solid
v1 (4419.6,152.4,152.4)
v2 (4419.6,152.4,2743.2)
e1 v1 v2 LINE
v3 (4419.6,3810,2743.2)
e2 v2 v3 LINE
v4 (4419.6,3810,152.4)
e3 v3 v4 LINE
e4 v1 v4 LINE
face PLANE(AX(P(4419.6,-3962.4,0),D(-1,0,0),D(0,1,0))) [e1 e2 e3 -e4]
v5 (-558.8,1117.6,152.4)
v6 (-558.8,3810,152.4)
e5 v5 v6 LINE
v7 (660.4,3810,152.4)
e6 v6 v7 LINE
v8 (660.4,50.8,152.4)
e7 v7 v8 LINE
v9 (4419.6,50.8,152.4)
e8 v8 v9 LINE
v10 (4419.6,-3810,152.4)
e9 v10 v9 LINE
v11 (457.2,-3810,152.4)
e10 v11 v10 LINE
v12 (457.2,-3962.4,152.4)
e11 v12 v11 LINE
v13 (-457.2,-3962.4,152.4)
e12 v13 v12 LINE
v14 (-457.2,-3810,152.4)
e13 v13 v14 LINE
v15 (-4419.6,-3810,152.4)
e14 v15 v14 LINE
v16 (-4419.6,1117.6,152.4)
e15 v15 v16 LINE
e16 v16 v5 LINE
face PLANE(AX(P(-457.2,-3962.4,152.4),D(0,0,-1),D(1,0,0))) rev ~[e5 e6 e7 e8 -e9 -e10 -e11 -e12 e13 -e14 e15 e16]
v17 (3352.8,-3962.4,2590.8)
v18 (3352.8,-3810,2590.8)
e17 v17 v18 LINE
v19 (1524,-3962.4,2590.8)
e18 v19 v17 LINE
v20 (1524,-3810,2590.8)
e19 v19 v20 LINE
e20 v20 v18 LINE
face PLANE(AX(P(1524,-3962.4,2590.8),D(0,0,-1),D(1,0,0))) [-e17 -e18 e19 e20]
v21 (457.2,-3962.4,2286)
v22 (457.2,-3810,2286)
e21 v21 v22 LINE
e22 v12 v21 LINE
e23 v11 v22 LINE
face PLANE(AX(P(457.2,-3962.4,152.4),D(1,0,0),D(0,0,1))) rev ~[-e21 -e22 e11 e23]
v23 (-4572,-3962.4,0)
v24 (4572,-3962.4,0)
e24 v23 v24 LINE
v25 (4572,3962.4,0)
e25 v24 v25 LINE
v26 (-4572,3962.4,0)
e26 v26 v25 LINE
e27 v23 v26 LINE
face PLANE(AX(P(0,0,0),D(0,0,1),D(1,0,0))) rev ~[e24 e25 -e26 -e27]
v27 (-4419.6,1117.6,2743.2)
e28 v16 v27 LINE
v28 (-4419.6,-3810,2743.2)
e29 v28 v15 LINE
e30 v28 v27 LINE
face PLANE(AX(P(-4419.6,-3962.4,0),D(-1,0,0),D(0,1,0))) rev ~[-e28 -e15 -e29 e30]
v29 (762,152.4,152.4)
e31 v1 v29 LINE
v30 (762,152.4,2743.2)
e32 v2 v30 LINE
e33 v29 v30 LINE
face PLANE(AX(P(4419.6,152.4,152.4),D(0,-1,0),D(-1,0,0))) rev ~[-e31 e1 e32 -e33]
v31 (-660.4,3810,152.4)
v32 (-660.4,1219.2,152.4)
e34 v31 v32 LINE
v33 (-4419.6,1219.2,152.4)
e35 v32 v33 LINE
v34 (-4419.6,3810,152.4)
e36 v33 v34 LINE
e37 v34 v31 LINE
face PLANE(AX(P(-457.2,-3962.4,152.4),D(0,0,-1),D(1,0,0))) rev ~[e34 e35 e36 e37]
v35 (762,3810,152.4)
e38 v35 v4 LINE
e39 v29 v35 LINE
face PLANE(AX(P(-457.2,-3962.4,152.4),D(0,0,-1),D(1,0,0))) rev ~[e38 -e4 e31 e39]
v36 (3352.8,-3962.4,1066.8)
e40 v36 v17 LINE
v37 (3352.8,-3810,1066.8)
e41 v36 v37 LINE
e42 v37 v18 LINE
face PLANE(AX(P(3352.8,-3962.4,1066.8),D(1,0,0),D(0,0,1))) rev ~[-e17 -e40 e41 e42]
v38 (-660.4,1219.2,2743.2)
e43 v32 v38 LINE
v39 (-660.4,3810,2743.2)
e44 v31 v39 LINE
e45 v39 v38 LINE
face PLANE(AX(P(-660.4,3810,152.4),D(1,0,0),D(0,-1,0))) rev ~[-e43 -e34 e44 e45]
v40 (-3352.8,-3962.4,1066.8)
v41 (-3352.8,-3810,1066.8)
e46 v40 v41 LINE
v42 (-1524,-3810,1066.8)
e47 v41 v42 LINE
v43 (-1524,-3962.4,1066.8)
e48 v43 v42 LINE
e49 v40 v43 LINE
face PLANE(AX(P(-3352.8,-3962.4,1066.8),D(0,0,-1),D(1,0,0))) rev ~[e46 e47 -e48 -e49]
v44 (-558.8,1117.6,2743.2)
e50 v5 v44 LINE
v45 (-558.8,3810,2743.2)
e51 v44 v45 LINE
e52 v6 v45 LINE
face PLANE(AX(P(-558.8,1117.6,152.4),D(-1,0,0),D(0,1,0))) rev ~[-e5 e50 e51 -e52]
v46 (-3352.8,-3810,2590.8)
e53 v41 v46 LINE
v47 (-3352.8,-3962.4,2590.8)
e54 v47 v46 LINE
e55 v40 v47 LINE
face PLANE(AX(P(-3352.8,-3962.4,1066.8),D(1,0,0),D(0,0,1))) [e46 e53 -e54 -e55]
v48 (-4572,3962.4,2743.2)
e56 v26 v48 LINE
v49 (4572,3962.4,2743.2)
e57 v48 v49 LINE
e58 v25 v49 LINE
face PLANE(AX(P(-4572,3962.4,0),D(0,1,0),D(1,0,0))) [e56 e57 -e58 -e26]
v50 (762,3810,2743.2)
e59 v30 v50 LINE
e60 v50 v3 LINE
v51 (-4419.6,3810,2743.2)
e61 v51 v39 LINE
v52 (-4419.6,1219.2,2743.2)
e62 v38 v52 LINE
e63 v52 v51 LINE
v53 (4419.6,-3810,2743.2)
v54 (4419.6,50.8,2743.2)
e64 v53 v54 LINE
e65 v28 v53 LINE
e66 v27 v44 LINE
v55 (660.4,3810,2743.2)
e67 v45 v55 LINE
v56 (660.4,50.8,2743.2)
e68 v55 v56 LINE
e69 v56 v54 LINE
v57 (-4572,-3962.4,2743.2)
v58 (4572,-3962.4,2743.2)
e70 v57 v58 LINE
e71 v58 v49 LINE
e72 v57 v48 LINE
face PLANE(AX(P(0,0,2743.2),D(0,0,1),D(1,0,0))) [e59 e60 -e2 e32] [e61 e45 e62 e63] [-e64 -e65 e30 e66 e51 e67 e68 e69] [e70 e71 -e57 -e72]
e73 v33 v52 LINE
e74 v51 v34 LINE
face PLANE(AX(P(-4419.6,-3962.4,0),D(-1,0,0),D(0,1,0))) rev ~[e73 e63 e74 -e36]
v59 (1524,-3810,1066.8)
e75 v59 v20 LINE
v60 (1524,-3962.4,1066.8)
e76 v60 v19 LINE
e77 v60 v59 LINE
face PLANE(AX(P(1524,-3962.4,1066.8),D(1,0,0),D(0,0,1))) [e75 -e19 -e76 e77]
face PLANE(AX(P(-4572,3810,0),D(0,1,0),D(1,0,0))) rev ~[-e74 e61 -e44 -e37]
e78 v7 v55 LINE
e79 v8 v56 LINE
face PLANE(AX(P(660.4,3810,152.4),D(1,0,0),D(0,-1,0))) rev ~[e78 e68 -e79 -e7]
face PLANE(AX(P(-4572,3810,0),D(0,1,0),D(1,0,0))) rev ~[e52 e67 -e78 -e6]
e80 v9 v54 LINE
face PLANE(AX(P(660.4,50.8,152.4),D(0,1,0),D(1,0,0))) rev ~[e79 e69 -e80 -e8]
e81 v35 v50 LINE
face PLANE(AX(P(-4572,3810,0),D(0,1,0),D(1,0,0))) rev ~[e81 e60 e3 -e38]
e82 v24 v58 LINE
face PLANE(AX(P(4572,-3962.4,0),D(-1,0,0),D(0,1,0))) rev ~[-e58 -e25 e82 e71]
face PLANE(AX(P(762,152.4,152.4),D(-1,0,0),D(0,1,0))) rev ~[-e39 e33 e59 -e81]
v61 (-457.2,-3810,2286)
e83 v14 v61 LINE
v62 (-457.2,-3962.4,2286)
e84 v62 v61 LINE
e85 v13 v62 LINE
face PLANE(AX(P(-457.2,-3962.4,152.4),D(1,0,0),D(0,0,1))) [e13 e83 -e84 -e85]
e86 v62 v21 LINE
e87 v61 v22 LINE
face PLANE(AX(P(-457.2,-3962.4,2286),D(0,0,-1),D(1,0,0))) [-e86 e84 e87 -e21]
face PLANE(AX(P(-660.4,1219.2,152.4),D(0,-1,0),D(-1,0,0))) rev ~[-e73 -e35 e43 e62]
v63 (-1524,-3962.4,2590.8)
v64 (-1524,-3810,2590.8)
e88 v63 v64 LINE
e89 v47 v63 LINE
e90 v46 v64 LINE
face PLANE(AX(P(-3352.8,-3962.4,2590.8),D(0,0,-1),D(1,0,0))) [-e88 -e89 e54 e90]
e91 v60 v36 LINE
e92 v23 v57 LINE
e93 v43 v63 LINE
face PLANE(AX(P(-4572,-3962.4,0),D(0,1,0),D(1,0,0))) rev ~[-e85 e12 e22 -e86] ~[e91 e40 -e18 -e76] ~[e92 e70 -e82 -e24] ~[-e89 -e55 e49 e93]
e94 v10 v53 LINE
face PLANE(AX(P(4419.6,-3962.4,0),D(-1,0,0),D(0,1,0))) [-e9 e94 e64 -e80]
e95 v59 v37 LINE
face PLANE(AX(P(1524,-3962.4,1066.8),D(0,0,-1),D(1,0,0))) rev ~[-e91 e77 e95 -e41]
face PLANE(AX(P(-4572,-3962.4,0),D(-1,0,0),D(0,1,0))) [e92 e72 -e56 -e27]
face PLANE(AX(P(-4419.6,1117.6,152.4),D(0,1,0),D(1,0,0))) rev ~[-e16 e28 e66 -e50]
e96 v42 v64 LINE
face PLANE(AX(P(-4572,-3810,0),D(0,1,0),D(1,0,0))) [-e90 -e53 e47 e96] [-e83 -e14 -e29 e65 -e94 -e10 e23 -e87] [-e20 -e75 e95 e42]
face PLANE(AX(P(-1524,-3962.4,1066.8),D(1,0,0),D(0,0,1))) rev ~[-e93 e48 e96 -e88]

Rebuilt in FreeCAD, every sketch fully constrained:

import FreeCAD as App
import Part
import Sketcher
Q = App.Units.Quantity


def faces_at(feature, points):
    """Names of the faces that lie closest to the given points."""
    faces = feature.Shape.Faces
    near = lambda p: min(range(len(faces)), key=lambda i: faces[i].distToShape(Part.Vertex(*p))[0])
    return sorted({f"Face{near(p) + 1}" for p in points})


def add_polygon(sketch, points):
    """Adds a closed chain of lines whose ends are joined by coincident constraints."""
    first, n = sketch.GeometryCount, len(points)
    for a, b in zip(points, points[1:] + points[:1]):
        sketch.addGeometry(Part.LineSegment(App.Vector(*a, 0), App.Vector(*b, 0)), False)
    for i in range(n):
        sketch.addConstraint(Sketcher.Constraint("Coincident", first + i, 2, first + (i + 1) % n, 1))

doc = App.newDocument("Part")
body = doc.addObject("PartDesign::Body", "Body")

# Sketch on XY plane
sketch1 = body.newObject("Sketcher::SketchObject", "Sketch")
sketch1.AttachmentSupport = (doc.getObject("XY_Plane"), [""])
sketch1.MapMode = "FlatFace"
add_polygon(sketch1, [(-4572, 3962), (-4572, -3962), (4572, -3962), (4572, 3962)])  # lines 0-3
sketch1.addConstraint(Sketcher.Constraint("Vertical", 0))
sketch1.addConstraint(Sketcher.Constraint("Horizontal", 1))
sketch1.addConstraint(Sketcher.Constraint("Vertical", 2))
sketch1.addConstraint(Sketcher.Constraint("Horizontal", 3))
sketch1.addConstraint(Sketcher.Constraint("Symmetric", 0, 2, 2, 2, -1, 1))
sketch1.addConstraint(Sketcher.Constraint("DistanceX", 1, 1, 1, 2, Q("360 in")))
sketch1.addConstraint(Sketcher.Constraint("DistanceY", 0, 2, 0, 1, Q("312 in")))
pad1 = body.newObject("PartDesign::Pad", "Pad")
pad1.Profile = sketch1
pad1.Length = Q("108 in")
doc.recompute()

thickness = body.newObject("PartDesign::Thickness", "Thickness")
thickness.Base = (pad1, faces_at(pad1, [(0, 0, 2743.2)]))
thickness.Value = Q("6 in")
thickness.Reversed = True
thickness.Join = "Arc"

# Sketch on XZ plane
sketch2 = body.newObject("Sketcher::SketchObject", "Sketch001")
sketch2.AttachmentSupport = (doc.getObject("XZ_Plane"), [""])
sketch2.MapMode = "FlatFace"
sketch2.AttachmentOffset = App.Placement(App.Vector(0, 0, 156 * 25.4), App.Rotation())
add_polygon(sketch2, [(-457, 2286), (-457, 152), (457, 152), (457, 2286)])  # lines 0-3
add_polygon(sketch2, [(-3353, 6096), (-3353, 3658), (-914, 3658), (-914, 6096)])  # lines 4-7
add_polygon(sketch2, [(914, 6096), (914, 3658), (3353, 3658), (3353, 6096)])  # lines 8-11
add_polygon(sketch2, [(-3353, 2591), (-3353, 1067), (-1524, 1067), (-1524, 2591)])  # lines 12-15
add_polygon(sketch2, [(1524, 2591), (1524, 1067), (3353, 1067), (3353, 2591)])  # lines 16-19
sketch2.addConstraint(Sketcher.Constraint("Vertical", 0))
sketch2.addConstraint(Sketcher.Constraint("Horizontal", 1))
sketch2.addConstraint(Sketcher.Constraint("Vertical", 2))
sketch2.addConstraint(Sketcher.Constraint("Horizontal", 3))
sketch2.addConstraint(Sketcher.Constraint("Vertical", 4))
sketch2.addConstraint(Sketcher.Constraint("Horizontal", 5))
sketch2.addConstraint(Sketcher.Constraint("Vertical", 6))
sketch2.addConstraint(Sketcher.Constraint("Horizontal", 7))
sketch2.addConstraint(Sketcher.Constraint("Vertical", 8))
sketch2.addConstraint(Sketcher.Constraint("Horizontal", 9))
sketch2.addConstraint(Sketcher.Constraint("Vertical", 10))
sketch2.addConstraint(Sketcher.Constraint("Horizontal", 11))
sketch2.addConstraint(Sketcher.Constraint("Vertical", 12))
sketch2.addConstraint(Sketcher.Constraint("Horizontal", 13))
sketch2.addConstraint(Sketcher.Constraint("Vertical", 14))
sketch2.addConstraint(Sketcher.Constraint("Horizontal", 15))
sketch2.addConstraint(Sketcher.Constraint("Vertical", 16))
sketch2.addConstraint(Sketcher.Constraint("Horizontal", 17))
sketch2.addConstraint(Sketcher.Constraint("Vertical", 18))
sketch2.addConstraint(Sketcher.Constraint("Horizontal", 19))
sketch2.addConstraint(Sketcher.Constraint("Symmetric", 5, 2, 8, 2, -2))
sketch2.addConstraint(Sketcher.Constraint("Symmetric", 7, 2, 10, 2, -2))
sketch2.addConstraint(Sketcher.Constraint("Symmetric", 13, 2, 16, 2, -2))
sketch2.addConstraint(Sketcher.Constraint("Symmetric", 15, 2, 18, 2, -2))
sketch2.addConstraint(Sketcher.Constraint("Vertical", 7, 2, 12, 2))
sketch2.addConstraint(Sketcher.Constraint("Equal", 11, 4))
sketch2.addConstraint(Sketcher.Constraint("DistanceX", 1, 1, 1, 2, Q("36 in")))
sketch2.addConstraint(Sketcher.Constraint("DistanceX", 5, 1, 5, 2, Q("96 in")))
sketch2.addConstraint(Sketcher.Constraint("DistanceX", 13, 1, 13, 2, Q("72 in")))
sketch2.addConstraint(Sketcher.Constraint("DistanceY", 0, 2, 0, 1, Q("84 in")))
sketch2.addConstraint(Sketcher.Constraint("DistanceY", 12, 2, 12, 1, Q("60 in")))
sketch2.addConstraint(Sketcher.Constraint("DistanceX", 0, 2, -1, 1, Q("18 in")))
sketch2.addConstraint(Sketcher.Constraint("DistanceY", -1, 1, 0, 2, Q("6 in")))
sketch2.addConstraint(Sketcher.Constraint("DistanceX", 4, 2, -1, 1, Q("132 in")))
sketch2.addConstraint(Sketcher.Constraint("DistanceY", -1, 1, 4, 2, Q("144 in")))
sketch2.addConstraint(Sketcher.Constraint("DistanceY", -1, 1, 12, 2, Q("42 in")))
pocket1 = body.newObject("PartDesign::Pocket", "Pocket")
pocket1.Profile = sketch2
pocket1.Length = Q("6 in")

# Sketch on XY plane
sketch3 = body.newObject("Sketcher::SketchObject", "Sketch002")
sketch3.AttachmentSupport = (doc.getObject("XY_Plane"), [""])
sketch3.MapMode = "FlatFace"
sketch3.AttachmentOffset = App.Placement(App.Vector(0, 0, 6 * 25.4), App.Rotation())
add_polygon(sketch3, [(660, 51), (4420, 51), (4420, 152), (762, 152), (762, 3810), (660, 3810)])  # lines 0-5
add_polygon(sketch3, [(-559, 1118), (-559, 3810), (-660, 3810), (-660, 1219), (-4420, 1219), (-4420, 1118)])  # lines 6-11
sketch3.addConstraint(Sketcher.Constraint("Horizontal", 0))
sketch3.addConstraint(Sketcher.Constraint("Vertical", 1))
sketch3.addConstraint(Sketcher.Constraint("Horizontal", 2))
sketch3.addConstraint(Sketcher.Constraint("Vertical", 3))
sketch3.addConstraint(Sketcher.Constraint("Horizontal", 4))
sketch3.addConstraint(Sketcher.Constraint("Vertical", 5))
sketch3.addConstraint(Sketcher.Constraint("Vertical", 6))
sketch3.addConstraint(Sketcher.Constraint("Horizontal", 7))
sketch3.addConstraint(Sketcher.Constraint("Vertical", 8))
sketch3.addConstraint(Sketcher.Constraint("Horizontal", 9))
sketch3.addConstraint(Sketcher.Constraint("Vertical", 10))
sketch3.addConstraint(Sketcher.Constraint("Horizontal", 11))
sketch3.addConstraint(Sketcher.Constraint("Symmetric", 4, 2, 7, 2, -2))
sketch3.addConstraint(Sketcher.Constraint("Equal", 4, 7))
sketch3.addConstraint(Sketcher.Constraint("Equal", 0, 9))
sketch3.addConstraint(Sketcher.Constraint("Equal", 7, 1))
sketch3.addConstraint(Sketcher.Constraint("Equal", 2, 3))
sketch3.addConstraint(Sketcher.Constraint("Equal", 1, 10))
sketch3.addConstraint(Sketcher.Constraint("DistanceX", 0, 1, 0, 2, Q("148 in")))
sketch3.addConstraint(Sketcher.Constraint("DistanceX", 2, 2, 2, 1, Q("144 in")))
sketch3.addConstraint(Sketcher.Constraint("DistanceY", 6, 1, 6, 2, Q("106 in")))
sketch3.addConstraint(Sketcher.Constraint("DistanceX", -1, 1, 0, 2, Q("174 in")))
sketch3.addConstraint(Sketcher.Constraint("DistanceY", -1, 1, 0, 2, Q("2 in")))
pad2 = body.newObject("PartDesign::Pad", "Pad001")
pad2.Profile = sketch3
pad2.Length = Q("102 in")

doc.recompute()
